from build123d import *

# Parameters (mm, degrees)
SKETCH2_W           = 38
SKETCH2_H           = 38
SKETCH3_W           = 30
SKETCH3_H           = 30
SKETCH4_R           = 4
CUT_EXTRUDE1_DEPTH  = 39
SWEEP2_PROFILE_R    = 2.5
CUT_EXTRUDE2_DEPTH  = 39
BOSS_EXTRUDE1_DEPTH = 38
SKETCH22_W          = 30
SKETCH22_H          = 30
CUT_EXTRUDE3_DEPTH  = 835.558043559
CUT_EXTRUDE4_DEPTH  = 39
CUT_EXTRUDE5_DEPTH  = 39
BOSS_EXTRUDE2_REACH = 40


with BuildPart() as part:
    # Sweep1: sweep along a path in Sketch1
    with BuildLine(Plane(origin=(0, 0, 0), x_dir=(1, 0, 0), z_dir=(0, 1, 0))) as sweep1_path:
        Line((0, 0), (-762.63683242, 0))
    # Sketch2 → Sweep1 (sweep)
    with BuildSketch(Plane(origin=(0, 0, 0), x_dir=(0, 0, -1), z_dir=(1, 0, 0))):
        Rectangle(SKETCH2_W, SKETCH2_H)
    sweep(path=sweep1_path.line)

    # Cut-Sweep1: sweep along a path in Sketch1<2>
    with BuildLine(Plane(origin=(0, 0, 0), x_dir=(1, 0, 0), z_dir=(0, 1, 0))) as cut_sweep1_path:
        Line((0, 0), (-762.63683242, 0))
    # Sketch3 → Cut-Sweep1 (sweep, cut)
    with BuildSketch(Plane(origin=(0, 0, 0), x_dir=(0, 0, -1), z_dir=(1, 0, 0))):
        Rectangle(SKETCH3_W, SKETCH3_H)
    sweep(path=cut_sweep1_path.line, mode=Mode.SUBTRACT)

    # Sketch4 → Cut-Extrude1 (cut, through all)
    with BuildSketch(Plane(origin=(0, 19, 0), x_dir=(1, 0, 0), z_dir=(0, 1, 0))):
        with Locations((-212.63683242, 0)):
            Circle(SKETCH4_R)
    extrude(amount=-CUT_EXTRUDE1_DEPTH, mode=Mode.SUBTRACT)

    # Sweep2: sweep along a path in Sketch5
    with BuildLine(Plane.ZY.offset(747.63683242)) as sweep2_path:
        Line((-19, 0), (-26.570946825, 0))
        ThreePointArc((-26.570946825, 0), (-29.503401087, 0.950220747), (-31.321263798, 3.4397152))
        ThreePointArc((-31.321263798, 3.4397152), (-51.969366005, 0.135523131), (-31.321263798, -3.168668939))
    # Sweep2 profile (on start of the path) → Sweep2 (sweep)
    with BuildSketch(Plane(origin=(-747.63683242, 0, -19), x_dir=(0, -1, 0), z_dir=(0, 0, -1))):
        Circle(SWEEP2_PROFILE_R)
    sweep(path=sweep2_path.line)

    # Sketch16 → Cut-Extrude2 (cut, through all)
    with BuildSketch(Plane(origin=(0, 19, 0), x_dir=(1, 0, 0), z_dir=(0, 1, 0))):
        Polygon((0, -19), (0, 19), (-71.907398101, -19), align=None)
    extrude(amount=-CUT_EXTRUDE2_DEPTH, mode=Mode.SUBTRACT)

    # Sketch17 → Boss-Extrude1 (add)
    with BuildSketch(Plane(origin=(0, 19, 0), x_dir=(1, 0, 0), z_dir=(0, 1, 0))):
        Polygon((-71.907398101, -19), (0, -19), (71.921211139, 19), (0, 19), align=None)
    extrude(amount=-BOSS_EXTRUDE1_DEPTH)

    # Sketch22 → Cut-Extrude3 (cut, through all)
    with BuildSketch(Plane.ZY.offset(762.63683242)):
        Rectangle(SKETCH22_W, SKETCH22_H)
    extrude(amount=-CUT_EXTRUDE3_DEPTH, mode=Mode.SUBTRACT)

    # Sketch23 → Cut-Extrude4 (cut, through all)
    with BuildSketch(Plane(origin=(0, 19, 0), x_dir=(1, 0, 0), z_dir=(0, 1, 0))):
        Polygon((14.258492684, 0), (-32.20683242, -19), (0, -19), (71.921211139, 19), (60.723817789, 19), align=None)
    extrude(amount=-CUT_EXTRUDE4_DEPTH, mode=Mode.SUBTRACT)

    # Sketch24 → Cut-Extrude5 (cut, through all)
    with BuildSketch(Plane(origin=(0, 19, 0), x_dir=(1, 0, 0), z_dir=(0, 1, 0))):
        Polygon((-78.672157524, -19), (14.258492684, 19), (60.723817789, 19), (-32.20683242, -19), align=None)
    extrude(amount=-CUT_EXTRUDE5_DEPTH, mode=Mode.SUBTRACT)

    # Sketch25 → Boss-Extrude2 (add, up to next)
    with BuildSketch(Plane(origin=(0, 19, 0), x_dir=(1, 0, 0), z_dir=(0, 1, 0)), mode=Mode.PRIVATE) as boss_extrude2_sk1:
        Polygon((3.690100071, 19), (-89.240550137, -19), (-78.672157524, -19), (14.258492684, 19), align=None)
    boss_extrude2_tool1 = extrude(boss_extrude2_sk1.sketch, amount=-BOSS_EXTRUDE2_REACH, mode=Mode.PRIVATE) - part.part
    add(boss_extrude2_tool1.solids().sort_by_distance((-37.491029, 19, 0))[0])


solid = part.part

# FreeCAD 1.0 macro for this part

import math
import FreeCAD as App
import Part
import Sketcher

V = App.Vector
Q = App.Units.Quantity


def add_polygon(sketch, points):
    """Adds a closed chain of lines whose ends are joined by coincident constraints."""
    first, n = sketch.GeometryCount, len(points)
    for a, b in zip(points, points[1:] + points[:1]):
        sketch.addGeometry(Part.LineSegment(App.Vector(*a, 0), App.Vector(*b, 0)), False)
    for i in range(n):
        sketch.addConstraint(Sketcher.Constraint("Coincident", first + i, 2, first + (i + 1) % n, 1))

doc = App.newDocument("Part")
body = doc.addObject("PartDesign::Body", "Body")

sketch1 = body.newObject("Sketcher::SketchObject", "Sketch")
sketch1.AttachmentSupport = (doc.getObject("YZ_Plane"), [""])
sketch1.MapMode = "FlatFace"
add_polygon(sketch1, [(19, 19), (-19, 19), (-19, -19), (19, -19)])
sketch1.addConstraint(Sketcher.Constraint("Horizontal", 0))
sketch1.addConstraint(Sketcher.Constraint("Vertical", 1))
sketch1.addConstraint(Sketcher.Constraint("Horizontal", 2))
sketch1.addConstraint(Sketcher.Constraint("Vertical", 3))
sketch1.addConstraint(Sketcher.Constraint("Symmetric", 0, 2, 2, 2, -1, 1))
sketch1.addConstraint(Sketcher.Constraint("Equal", 2, 1))
sketch1.addConstraint(Sketcher.Constraint("DistanceX", 0, 2, 0, 1, 38.0))

sketch2 = body.newObject("Sketcher::SketchObject", "Sketch001")
sketch2.AttachmentSupport = (doc.getObject("XY_Plane"), [""])
sketch2.MapMode = "FlatFace"
sketch2.addGeometry(Part.LineSegment(V(0, 0, 0), V(-763, 0, 0)), False)
sketch2.addConstraint(Sketcher.Constraint("Horizontal", 0))
sketch2.addConstraint(Sketcher.Constraint("Coincident", 0, 1, -1, 1))
sketch2.addConstraint(Sketcher.Constraint("DistanceX", 0, 2, 0, 1, 762.636832))
doc.recompute()

additivepipe = body.newObject("PartDesign::AdditivePipe", "AdditivePipe")
additivepipe.Profile = sketch1
additivepipe.Spine = (sketch2, ["Edge1"])

sketch3 = body.newObject("Sketcher::SketchObject", "Sketch002")
sketch3.AttachmentSupport = (doc.getObject("YZ_Plane"), [""])
sketch3.MapMode = "FlatFace"
add_polygon(sketch3, [(15, 15), (-15, 15), (-15, -15), (15, -15)])
sketch3.addConstraint(Sketcher.Constraint("Horizontal", 0))
sketch3.addConstraint(Sketcher.Constraint("Vertical", 1))
sketch3.addConstraint(Sketcher.Constraint("Horizontal", 2))
sketch3.addConstraint(Sketcher.Constraint("Vertical", 3))
sketch3.addConstraint(Sketcher.Constraint("Symmetric", 0, 2, 2, 2, -1, 1))
sketch3.addConstraint(Sketcher.Constraint("Equal", 2, 1))
sketch3.addConstraint(Sketcher.Constraint("DistanceX", 0, 2, 0, 1, 30.0))

sketch4 = body.newObject("Sketcher::SketchObject", "Sketch003")
sketch4.AttachmentSupport = (doc.getObject("XY_Plane"), [""])
sketch4.MapMode = "FlatFace"
sketch4.addGeometry(Part.LineSegment(V(0, 0, 0), V(-763, 0, 0)), False)
sketch4.addConstraint(Sketcher.Constraint("Horizontal", 0))
sketch4.addConstraint(Sketcher.Constraint("Coincident", 0, 1, -1, 1))
sketch4.addConstraint(Sketcher.Constraint("DistanceX", 0, 2, 0, 1, 762.636832))
doc.recompute()

subtractivepipe = body.newObject("PartDesign::SubtractivePipe", "SubtractivePipe")
subtractivepipe.Profile = sketch3
subtractivepipe.Spine = (sketch4, ["Edge1"])

sketch5 = body.newObject("Sketcher::SketchObject", "Sketch004")
sketch5.AttachmentSupport = (doc.getObject("XZ_Plane"), [""])
sketch5.MapMode = "FlatFace"
sketch5.AttachmentOffset = App.Placement(V(0, 0, -19), App.Rotation())
sketch5.addGeometry(Part.Circle(V(-212.6, 0, 0), V(0, 0, 1), 4), False)
sketch5.addConstraint(Sketcher.Constraint("PointOnObject", 0, 3, -1))
sketch5.addConstraint(Sketcher.Constraint("Diameter", 0, 8.0))
sketch5.addConstraint(Sketcher.Constraint("DistanceX", 0, 3, -1, 1, 212.636832))
pocket1 = body.newObject("PartDesign::Pocket", "Pocket")
pocket1.Profile = sketch5
pocket1.Type = "ThroughAll"
pocket1.Reversed = True

sketch6 = body.newObject("Sketcher::SketchObject", "Sketch005")
sketch6.AttachmentSupport = (doc.getObject("XY_Plane"), [""])
sketch6.MapMode = "FlatFace"
sketch6.AttachmentOffset = App.Placement(V(0, 0, -19), App.Rotation())
sketch6.addGeometry(Part.Circle(V(-747.6, 0, 0), V(0, 0, 1), 2.5), False)
sketch6.addConstraint(Sketcher.Constraint("PointOnObject", 0, 3, -1))
sketch6.addConstraint(Sketcher.Constraint("Diameter", 0, 5.0))
sketch6.addConstraint(Sketcher.Constraint("DistanceX", 0, 3, -1, 1, 747.636832))

sketch7 = body.newObject("Sketcher::SketchObject", "Sketch006")
sketch7.AttachmentSupport = (doc.getObject("YZ_Plane"), [""])
sketch7.MapMode = "FlatFace"
sketch7.AttachmentOffset = App.Placement(V(0, 0, -747.636832), App.Rotation())
sketch7.addGeometry(Part.LineSegment(V(0, -19, 0), V(0, -27, 0)), False)
sketch7.addGeometry(Part.ArcOfCircle(Part.Circle(V(5, -27, 0), V(0, 0, 1), 5), math.radians(-180), math.radians(-108)), False)
sketch7.addGeometry(Part.ArcOfCircle(Part.Circle(V(0, -41, 0), V(0, 0, 1), 11), math.radians(108), math.radians(432)), False)
sketch7.addConstraint(Sketcher.Constraint("Tangent", 0, 2, 1, 1))
sketch7.addConstraint(Sketcher.Constraint("Tangent", 1, 2, 2, 2))
sketch7.addConstraint(Sketcher.Constraint("Vertical", 0))
sketch7.addConstraint(Sketcher.Constraint("PointOnObject", 0, 1, -2))
sketch7.addConstraint(Sketcher.Constraint("Horizontal", 1, 2, 2, 1))
sketch7.addConstraint(Sketcher.Constraint("Radius", 1, 5.0))
sketch7.addConstraint(Sketcher.Constraint("DistanceY", 0, 1, -1, 1, 19.0))
sketch7.addConstraint(Sketcher.Constraint("Radius", 2, 10.588426))
sketch7.addConstraint(Sketcher.Constraint("DistanceY", 0, 2, 0, 1, 7.570947))
sketch7.addConstraint(Sketcher.Constraint("DistanceY", 2, 3, -1, 1, 41.38094))
doc.recompute()

additivepipe2 = body.newObject("PartDesign::AdditivePipe", "AdditivePipe001")
additivepipe2.Profile = sketch6
additivepipe2.Spine = (sketch7, ["Edge1", "Edge2", "Edge3"])

sketch8 = body.newObject("Sketcher::SketchObject", "Sketch007")
sketch8.AttachmentSupport = (doc.getObject("XZ_Plane"), [""])
sketch8.MapMode = "FlatFace"
sketch8.AttachmentOffset = App.Placement(V(0, 0, -19), App.Rotation())
add_polygon(sketch8, [(0, 19), (0, -19), (-72, 19)])
sketch8.addConstraint(Sketcher.Constraint("Vertical", 0))
sketch8.addConstraint(Sketcher.Constraint("Horizontal", 2))
sketch8.addConstraint(Sketcher.Constraint("Symmetric", 0, 2, 2, 2, -1, 1))
sketch8.addConstraint(Sketcher.Constraint("DistanceY", 0, 2, 0, 1, 38.0))
sketch8.addConstraint(Sketcher.Constraint("DistanceX", 2, 1, 2, 2, 71.907398))
pocket2 = body.newObject("PartDesign::Pocket", "Pocket001")
pocket2.Profile = sketch8
pocket2.Type = "ThroughAll"
pocket2.Reversed = True

sketch9 = body.newObject("Sketcher::SketchObject", "Sketch008")
sketch9.AttachmentSupport = (doc.getObject("XZ_Plane"), [""])
sketch9.MapMode = "FlatFace"
sketch9.AttachmentOffset = App.Placement(V(0, 0, -19), App.Rotation())
add_polygon(sketch9, [(-72, 19), (0, 19), (72, -19), (0, -19)])
sketch9.addConstraint(Sketcher.Constraint("Horizontal", 0))
sketch9.addConstraint(Sketcher.Constraint("Horizontal", 2))
sketch9.addConstraint(Sketcher.Constraint("Symmetric", 0, 2, 2, 2, -1, 1))
sketch9.addConstraint(Sketcher.Constraint("PointOnObject", 0, 2, -2))
sketch9.addConstraint(Sketcher.Constraint("DistanceY", -1, 1, 0, 2, 19.0))
sketch9.addConstraint(Sketcher.Constraint("Angle", 1, Q("-27.85 deg")))
sketch9.addConstraint(Sketcher.Constraint("DistanceX", 0, 1, 0, 2, 71.907398))
pad1 = body.newObject("PartDesign::Pad", "Pad")
pad1.Profile = sketch9
pad1.Length = 38

sketch10 = body.newObject("Sketcher::SketchObject", "Sketch009")
sketch10.AttachmentSupport = (doc.getObject("YZ_Plane"), [""])
sketch10.MapMode = "FlatFace"
sketch10.AttachmentOffset = App.Placement(V(0, 0, -762.636832), App.Rotation())
add_polygon(sketch10, [(15, -15), (-15, -15), (-15, 15), (15, 15)])
sketch10.addConstraint(Sketcher.Constraint("Horizontal", 0))
sketch10.addConstraint(Sketcher.Constraint("Vertical", 1))
sketch10.addConstraint(Sketcher.Constraint("Horizontal", 2))
sketch10.addConstraint(Sketcher.Constraint("Vertical", 3))
sketch10.addConstraint(Sketcher.Constraint("Symmetric", 0, 2, 2, 2, -1, 1))
sketch10.addConstraint(Sketcher.Constraint("Equal", 2, 1))
sketch10.addConstraint(Sketcher.Constraint("DistanceX", 0, 2, 0, 1, 30.0))
pocket3 = body.newObject("PartDesign::Pocket", "Pocket002")
pocket3.Profile = sketch10
pocket3.Type = "ThroughAll"
pocket3.Reversed = True

sketch11 = body.newObject("Sketcher::SketchObject", "Sketch010")
sketch11.AttachmentSupport = (doc.getObject("XZ_Plane"), [""])
sketch11.MapMode = "FlatFace"
sketch11.AttachmentOffset = App.Placement(V(0, 0, -19), App.Rotation())
add_polygon(sketch11, [(14, 0), (-32, 19), (0, 19), (72, -19), (61, -19)])
sketch11.addConstraint(Sketcher.Constraint("Horizontal", 1))
sketch11.addConstraint(Sketcher.Constraint("Horizontal", 3))
sketch11.addConstraint(Sketcher.Constraint("PointOnObject", 1, 2, -2))
sketch11.addConstraint(Sketcher.Constraint("PointOnObject", 4, 2, -1))
sketch11.addConstraint(Sketcher.Constraint("Parallel", 0, 4))
sketch11.addConstraint(Sketcher.Constraint("Equal", 0, 4))
sketch11.addConstraint(Sketcher.Constraint("DistanceY", -1, 1, 0, 2, 19.0))
sketch11.addConstraint(Sketcher.Constraint("Angle", 0, Q("157.76 deg")))
sketch11.addConstraint(Sketcher.Constraint("Angle", 2, Q("-27.85 deg")))
sketch11.addConstraint(Sketcher.Constraint("DistanceX", 1, 1, 1, 2, 32.206832))
pocket4 = body.newObject("PartDesign::Pocket", "Pocket003")
pocket4.Profile = sketch11
pocket4.Type = "ThroughAll"
pocket4.Reversed = True

sketch12 = body.newObject("Sketcher::SketchObject", "Sketch011")
sketch12.AttachmentSupport = (doc.getObject("XZ_Plane"), [""])
sketch12.MapMode = "FlatFace"
sketch12.AttachmentOffset = App.Placement(V(0, 0, -19), App.Rotation())
add_polygon(sketch12, [(14, -19), (-79, 19), (-32, 19), (61, -19)])
sketch12.addConstraint(Sketcher.Constraint("Horizontal", 1))
sketch12.addConstraint(Sketcher.Constraint("Horizontal", 3))
sketch12.addConstraint(Sketcher.Constraint("Parallel", 0, 2))
sketch12.addConstraint(Sketcher.Constraint("DistanceY", -1, 1, 0, 2, 19.0))
sketch12.addConstraint(Sketcher.Constraint("DistanceY", 2, 2, -1, 1, 19.0))
sketch12.addConstraint(Sketcher.Constraint("Angle", 0, Q("157.76 deg")))
sketch12.addConstraint(Sketcher.Constraint("DistanceX", 1, 1, 1, 2, 46.465325))
sketch12.addConstraint(Sketcher.Constraint("DistanceX", 0, 2, -1, 1, 78.672158))
pocket5 = body.newObject("PartDesign::Pocket", "Pocket004")
pocket5.Profile = sketch12
pocket5.Type = "ThroughAll"
pocket5.Reversed = True

sketch13 = body.newObject("Sketcher::SketchObject", "Sketch012")
sketch13.AttachmentSupport = (doc.getObject("XZ_Plane"), [""])
sketch13.MapMode = "FlatFace"
sketch13.AttachmentOffset = App.Placement(V(0, 0, -19), App.Rotation())
add_polygon(sketch13, [(4, -19), (-89, 19), (-79, 19), (14, -19)])
sketch13.addConstraint(Sketcher.Constraint("Horizontal", 1))
sketch13.addConstraint(Sketcher.Constraint("Horizontal", 3))
sketch13.addConstraint(Sketcher.Constraint("Parallel", 0, 2))
sketch13.addConstraint(Sketcher.Constraint("DistanceY", -1, 1, 0, 2, 19.0))
sketch13.addConstraint(Sketcher.Constraint("DistanceY", 2, 2, -1, 1, 19.0))
sketch13.addConstraint(Sketcher.Constraint("Angle", 0, Q("157.76 deg")))
sketch13.addConstraint(Sketcher.Constraint("DistanceX", -1, 1, 3, 2, 3.6901))
sketch13.addConstraint(Sketcher.Constraint("DistanceX", 1, 1, 1, 2, 10.568393))
pad2 = body.newObject("PartDesign::Pad", "Pad001")
pad2.Profile = sketch13
pad2.Length = 34

doc.recompute()
